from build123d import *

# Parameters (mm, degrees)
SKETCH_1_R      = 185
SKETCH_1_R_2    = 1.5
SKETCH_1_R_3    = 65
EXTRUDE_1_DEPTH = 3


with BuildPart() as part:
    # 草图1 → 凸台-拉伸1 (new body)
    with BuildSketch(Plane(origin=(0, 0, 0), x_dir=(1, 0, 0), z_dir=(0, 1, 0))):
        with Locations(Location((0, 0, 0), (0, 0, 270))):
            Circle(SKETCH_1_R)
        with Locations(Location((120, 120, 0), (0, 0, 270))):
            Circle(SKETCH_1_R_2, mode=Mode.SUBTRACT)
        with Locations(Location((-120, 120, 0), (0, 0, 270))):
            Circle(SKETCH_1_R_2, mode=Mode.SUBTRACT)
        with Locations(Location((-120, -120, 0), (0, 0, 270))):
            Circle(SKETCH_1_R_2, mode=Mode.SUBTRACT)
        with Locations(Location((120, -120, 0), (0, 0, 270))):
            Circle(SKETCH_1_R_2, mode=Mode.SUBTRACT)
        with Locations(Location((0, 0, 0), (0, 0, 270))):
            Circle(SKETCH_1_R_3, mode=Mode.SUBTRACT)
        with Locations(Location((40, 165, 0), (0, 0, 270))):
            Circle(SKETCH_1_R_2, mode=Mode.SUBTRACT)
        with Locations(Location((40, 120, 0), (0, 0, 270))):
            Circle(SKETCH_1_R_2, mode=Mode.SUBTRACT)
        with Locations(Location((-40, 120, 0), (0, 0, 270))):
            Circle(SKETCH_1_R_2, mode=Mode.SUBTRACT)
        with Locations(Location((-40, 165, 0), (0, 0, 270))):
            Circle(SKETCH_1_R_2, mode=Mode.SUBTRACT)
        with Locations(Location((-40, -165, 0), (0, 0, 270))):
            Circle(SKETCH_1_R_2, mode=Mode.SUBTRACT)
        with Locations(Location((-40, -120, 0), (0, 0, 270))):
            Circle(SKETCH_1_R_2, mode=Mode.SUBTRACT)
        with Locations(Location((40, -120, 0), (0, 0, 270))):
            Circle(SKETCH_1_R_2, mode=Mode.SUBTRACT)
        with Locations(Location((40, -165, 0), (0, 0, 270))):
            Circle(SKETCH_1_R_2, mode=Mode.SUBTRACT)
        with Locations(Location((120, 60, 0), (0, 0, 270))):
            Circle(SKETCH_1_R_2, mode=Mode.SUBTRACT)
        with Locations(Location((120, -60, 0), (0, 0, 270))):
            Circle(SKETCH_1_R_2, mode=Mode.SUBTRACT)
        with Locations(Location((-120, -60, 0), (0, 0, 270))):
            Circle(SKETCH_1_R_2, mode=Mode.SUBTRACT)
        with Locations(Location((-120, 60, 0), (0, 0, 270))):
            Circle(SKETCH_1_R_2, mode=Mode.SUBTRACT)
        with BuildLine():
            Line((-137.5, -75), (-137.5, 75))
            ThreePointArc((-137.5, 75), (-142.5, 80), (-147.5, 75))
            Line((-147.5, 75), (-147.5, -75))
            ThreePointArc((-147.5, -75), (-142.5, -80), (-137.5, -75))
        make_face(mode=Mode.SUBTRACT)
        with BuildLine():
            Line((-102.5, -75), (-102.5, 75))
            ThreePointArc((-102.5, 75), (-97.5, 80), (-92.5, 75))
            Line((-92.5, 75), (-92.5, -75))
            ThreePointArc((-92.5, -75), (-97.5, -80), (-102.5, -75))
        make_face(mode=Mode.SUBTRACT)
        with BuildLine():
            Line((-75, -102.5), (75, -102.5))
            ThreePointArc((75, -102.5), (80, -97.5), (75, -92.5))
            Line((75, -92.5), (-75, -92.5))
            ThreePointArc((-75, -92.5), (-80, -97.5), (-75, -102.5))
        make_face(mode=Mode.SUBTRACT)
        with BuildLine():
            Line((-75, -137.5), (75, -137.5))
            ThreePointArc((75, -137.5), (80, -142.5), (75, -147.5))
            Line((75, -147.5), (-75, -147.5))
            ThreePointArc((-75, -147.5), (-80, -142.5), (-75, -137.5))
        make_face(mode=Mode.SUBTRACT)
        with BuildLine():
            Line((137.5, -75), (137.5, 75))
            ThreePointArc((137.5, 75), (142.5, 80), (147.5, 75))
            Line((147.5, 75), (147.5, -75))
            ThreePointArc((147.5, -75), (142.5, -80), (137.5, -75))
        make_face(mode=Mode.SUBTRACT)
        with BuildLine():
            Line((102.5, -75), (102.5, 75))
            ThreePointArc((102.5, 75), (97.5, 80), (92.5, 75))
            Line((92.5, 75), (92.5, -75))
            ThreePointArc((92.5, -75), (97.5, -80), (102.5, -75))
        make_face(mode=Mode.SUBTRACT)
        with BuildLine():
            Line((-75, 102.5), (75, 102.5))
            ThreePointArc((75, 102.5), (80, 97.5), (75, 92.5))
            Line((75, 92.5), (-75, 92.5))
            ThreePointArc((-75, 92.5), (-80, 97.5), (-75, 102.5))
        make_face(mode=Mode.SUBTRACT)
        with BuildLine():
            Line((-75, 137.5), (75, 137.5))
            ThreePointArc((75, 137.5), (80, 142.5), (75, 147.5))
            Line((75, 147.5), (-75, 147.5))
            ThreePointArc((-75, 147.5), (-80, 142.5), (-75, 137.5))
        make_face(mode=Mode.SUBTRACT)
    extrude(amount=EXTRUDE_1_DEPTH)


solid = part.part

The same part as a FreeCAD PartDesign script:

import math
import FreeCAD as App
import Part
import Sketcher

V = App.Vector
Q = App.Units.Quantity

doc = App.newDocument("Part")
body = doc.addObject("PartDesign::Body", "Body")

# Sketch on XZ plane
sketch1 = doc.addObject("Sketcher::SketchObject", "Sketch")
body.addObject(sketch1)
sketch1.AttachmentSupport = (doc.XZ_Plane, [""])
sketch1.MapMode = "FlatFace"
sketch1.addGeometry([
    Part.Circle(V(0, 0, 0), V(0, 0, 1), 185),  # 0
    Part.Circle(V(-120, -120, 0), V(0, 0, 1), 1.5),  # 1
    Part.Circle(V(-120, -60, 0), V(0, 0, 1), 1.5),  # 2
    Part.Circle(V(-40, -165, 0), V(0, 0, 1), 1.5),  # 3
    Part.Circle(V(-40, -120, 0), V(0, 0, 1), 1.5),  # 4
    Part.LineSegment(V(75, -137.5, 0), V(-75, -137.5, 0)),  # 5
    Part.ArcOfCircle(Part.Circle(V(-75, -142.5, 0), V(0, 0, 1), 5), math.radians(90), math.radians(270)),  # 6
    Part.LineSegment(V(-75, -147.5, 0), V(75, -147.5, 0)),  # 7
    Part.ArcOfCircle(Part.Circle(V(75, -142.5, 0), V(0, 0, 1), 5), math.radians(-90), math.radians(90)),  # 8
    Part.ArcOfCircle(Part.Circle(V(-75, -97.5, 0), V(0, 0, 1), 5), math.radians(90), math.radians(270)),  # 9
    Part.LineSegment(V(-75, -102.5, 0), V(75, -102.5, 0)),  # 10
    Part.ArcOfCircle(Part.Circle(V(75, -97.5, 0), V(0, 0, 1), 5), math.radians(-90), math.radians(90)),  # 11
    Part.LineSegment(V(75, -92.5, 0), V(-75, -92.5, 0)),  # 12
    Part.LineSegment(V(-137.5, -75, 0), V(-137.5, 75, 0)),  # 13
    Part.ArcOfCircle(Part.Circle(V(-142.5, 75, 0), V(0, 0, 1), 5), math.radians(0), math.radians(180)),  # 14
    Part.LineSegment(V(-147.5, 75, 0), V(-147.5, -75, 0)),  # 15
    Part.ArcOfCircle(Part.Circle(V(-142.5, -75, 0), V(0, 0, 1), 5), math.radians(180), math.radians(360)),  # 16
    Part.Circle(V(-120, 60, 0), V(0, 0, 1), 1.5),  # 17
    Part.ArcOfCircle(Part.Circle(V(-97.5, 75, 0), V(0, 0, 1), 5), math.radians(0), math.radians(180)),  # 18
    Part.LineSegment(V(-102.5, 75, 0), V(-102.5, -75, 0)),  # 19
    Part.ArcOfCircle(Part.Circle(V(-97.5, -75, 0), V(0, 0, 1), 5), math.radians(180), math.radians(360)),  # 20
    Part.LineSegment(V(-92.5, -75, 0), V(-92.5, 75, 0)),  # 21
    Part.Circle(V(-120, 120, 0), V(0, 0, 1), 1.5),  # 22
    Part.Circle(V(-40, 120, 0), V(0, 0, 1), 1.5),  # 23
    Part.Circle(V(-40, 165, 0), V(0, 0, 1), 1.5),  # 24
    Part.Circle(V(40, -165, 0), V(0, 0, 1), 1.5),  # 25
    Part.Circle(V(40, -120, 0), V(0, 0, 1), 1.5),  # 26
    Part.Circle(V(120, -120, 0), V(0, 0, 1), 1.5),  # 27
    Part.Circle(V(120, -60, 0), V(0, 0, 1), 1.5),  # 28
    Part.Circle(V(0, 0, 0), V(0, 0, 1), 65),  # 29
    Part.LineSegment(V(75, 102.5, 0), V(-75, 102.5, 0)),  # 30
    Part.ArcOfCircle(Part.Circle(V(-75, 97.5, 0), V(0, 0, 1), 5), math.radians(90), math.radians(270)),  # 31
    Part.LineSegment(V(-75, 92.5, 0), V(75, 92.5, 0)),  # 32
    Part.ArcOfCircle(Part.Circle(V(75, 97.5, 0), V(0, 0, 1), 5), math.radians(-90), math.radians(90)),  # 33
    Part.ArcOfCircle(Part.Circle(V(-75, 142.5, 0), V(0, 0, 1), 5), math.radians(90), math.radians(270)),  # 34
    Part.LineSegment(V(-75, 137.5, 0), V(75, 137.5, 0)),  # 35
    Part.ArcOfCircle(Part.Circle(V(75, 142.5, 0), V(0, 0, 1), 5), math.radians(-90), math.radians(90)),  # 36
    Part.LineSegment(V(75, 147.5, 0), V(-75, 147.5, 0)),  # 37
    Part.Circle(V(40, 120, 0), V(0, 0, 1), 1.5),  # 38
    Part.Circle(V(40, 165, 0), V(0, 0, 1), 1.5),  # 39
    Part.LineSegment(V(102.5, -75, 0), V(102.5, 75, 0)),  # 40
    Part.ArcOfCircle(Part.Circle(V(97.5, 75, 0), V(0, 0, 1), 5), math.radians(0), math.radians(180)),  # 41
    Part.LineSegment(V(92.5, 75, 0), V(92.5, -75, 0)),  # 42
    Part.ArcOfCircle(Part.Circle(V(97.5, -75, 0), V(0, 0, 1), 5), math.radians(180), math.radians(360)),  # 43
    Part.ArcOfCircle(Part.Circle(V(142.5, 75, 0), V(0, 0, 1), 5), math.radians(0), math.radians(180)),  # 44
    Part.LineSegment(V(137.5, 75, 0), V(137.5, -75, 0)),  # 45
    Part.ArcOfCircle(Part.Circle(V(142.5, -75, 0), V(0, 0, 1), 5), math.radians(180), math.radians(360)),  # 46
    Part.LineSegment(V(147.5, -75, 0), V(147.5, 75, 0)),  # 47
    Part.Circle(V(120, 60, 0), V(0, 0, 1), 1.5),  # 48
    Part.Circle(V(120, 120, 0), V(0, 0, 1), 1.5),  # 49
], False)
sketch1.addConstraint([
    Sketcher.Constraint("Tangent", 5, 2, 6, 1),
    Sketcher.Constraint("Tangent", 6, 2, 7, 1),
    Sketcher.Constraint("Tangent", 7, 2, 8, 1),
    Sketcher.Constraint("Tangent", 8, 2, 5, 1),
    Sketcher.Constraint("Tangent", 9, 2, 10, 1),
    Sketcher.Constraint("Tangent", 10, 2, 11, 1),
    Sketcher.Constraint("Tangent", 11, 2, 12, 1),
    Sketcher.Constraint("Tangent", 12, 2, 9, 1),
    Sketcher.Constraint("Tangent", 13, 2, 14, 1),
    Sketcher.Constraint("Tangent", 14, 2, 15, 1),
    Sketcher.Constraint("Tangent", 15, 2, 16, 1),
    Sketcher.Constraint("Tangent", 16, 2, 13, 1),
    Sketcher.Constraint("Tangent", 18, 2, 19, 1),
    Sketcher.Constraint("Tangent", 19, 2, 20, 1),
    Sketcher.Constraint("Tangent", 20, 2, 21, 1),
    Sketcher.Constraint("Tangent", 21, 2, 18, 1),
    Sketcher.Constraint("Tangent", 30, 2, 31, 1),
    Sketcher.Constraint("Tangent", 31, 2, 32, 1),
    Sketcher.Constraint("Tangent", 32, 2, 33, 1),
    Sketcher.Constraint("Tangent", 33, 2, 30, 1),
    Sketcher.Constraint("Tangent", 34, 2, 35, 1),
    Sketcher.Constraint("Tangent", 35, 2, 36, 1),
    Sketcher.Constraint("Tangent", 36, 2, 37, 1),
    Sketcher.Constraint("Tangent", 37, 2, 34, 1),
    Sketcher.Constraint("Tangent", 40, 2, 41, 1),
    Sketcher.Constraint("Tangent", 41, 2, 42, 1),
    Sketcher.Constraint("Tangent", 42, 2, 43, 1),
    Sketcher.Constraint("Tangent", 43, 2, 40, 1),
    Sketcher.Constraint("Tangent", 44, 2, 45, 1),
    Sketcher.Constraint("Tangent", 45, 2, 46, 1),
    Sketcher.Constraint("Tangent", 46, 2, 47, 1),
    Sketcher.Constraint("Tangent", 47, 2, 44, 1),
    Sketcher.Constraint("Horizontal", 5),
    Sketcher.Constraint("Horizontal", 7),
    Sketcher.Constraint("Horizontal", 10),
    Sketcher.Constraint("Horizontal", 12),
    Sketcher.Constraint("Vertical", 13),
    Sketcher.Constraint("Vertical", 15),
    Sketcher.Constraint("Vertical", 19),
    Sketcher.Constraint("Vertical", 21),
    Sketcher.Constraint("Horizontal", 30),
    Sketcher.Constraint("Horizontal", 32),
    Sketcher.Constraint("Horizontal", 35),
    Sketcher.Constraint("Horizontal", 37),
    Sketcher.Constraint("Vertical", 40),
    Sketcher.Constraint("Vertical", 42),
    Sketcher.Constraint("Vertical", 45),
    Sketcher.Constraint("Vertical", 47),
    Sketcher.Constraint("Coincident", 0, 3, -1, 1),
    Sketcher.Constraint("Coincident", 29, 3, -1, 1),
    Sketcher.Constraint("Equal", 1, 2),
    Sketcher.Constraint("Equal", 2, 3),
    Sketcher.Constraint("Equal", 3, 4),
    Sketcher.Constraint("Equal", 8, 9),
    Sketcher.Constraint("Equal", 11, 14),
    Sketcher.Constraint("Equal", 4, 17),
    Sketcher.Constraint("Equal", 16, 18),
    Sketcher.Constraint("Equal", 17, 22),
    Sketcher.Constraint("Equal", 22, 23),
    Sketcher.Constraint("Equal", 23, 24),
    Sketcher.Constraint("Equal", 24, 25),
    Sketcher.Constraint("Equal", 25, 26),
    Sketcher.Constraint("Equal", 26, 27),
    Sketcher.Constraint("Equal", 27, 28),
    Sketcher.Constraint("Equal", 20, 31),
    Sketcher.Constraint("Equal", 33, 34),
    Sketcher.Constraint("Equal", 28, 38),
    Sketcher.Constraint("Equal", 38, 39),
    Sketcher.Constraint("Equal", 36, 41),
    Sketcher.Constraint("Equal", 43, 44),
    Sketcher.Constraint("Equal", 39, 48),
    Sketcher.Constraint("Equal", 48, 49),
    Sketcher.Constraint("Symmetric", 24, 3, 25, 3, -1, 1),
    Sketcher.Constraint("Symmetric", 23, 3, 26, 3, -1, 1),
    Sketcher.Constraint("Symmetric", 22, 3, 27, 3, -1, 1),
    Sketcher.Constraint("Symmetric", 17, 3, 28, 3, -1, 1),
    Sketcher.Constraint("Symmetric", 11, 3, 31, 3, -1, 1),
    Sketcher.Constraint("Symmetric", 8, 3, 34, 3, -1, 1),
    Sketcher.Constraint("Symmetric", 4, 3, 38, 3, -1, 1),
    Sketcher.Constraint("Symmetric", 3, 3, 39, 3, -1, 1),
    Sketcher.Constraint("Symmetric", 20, 3, 41, 3, -1, 1),
    Sketcher.Constraint("Symmetric", 16, 3, 44, 3, -1, 1),
    Sketcher.Constraint("Symmetric", 2, 3, 48, 3, -1, 1),
    Sketcher.Constraint("Symmetric", 1, 3, 49, 3, -1, 1),
    Sketcher.Constraint("Symmetric", 3, 3, 25, 3, -2),
    Sketcher.Constraint("Symmetric", 4, 3, 26, 3, -2),
    Sketcher.Constraint("Symmetric", 1, 3, 27, 3, -2),
    Sketcher.Constraint("Symmetric", 2, 3, 28, 3, -2),
    Sketcher.Constraint("Horizontal", 1, 3, 4, 3),
    Sketcher.Constraint("Horizontal", 14, 3, 18, 3),
    Sketcher.Constraint("Horizontal", 16, 3, 20, 3),
    Sketcher.Constraint("Horizontal", 18, 3, 41, 3),
    Sketcher.Constraint("Horizontal", 20, 3, 43, 3),
    Sketcher.Constraint("Horizontal", 43, 3, 46, 3),
    Sketcher.Constraint("Vertical", 1, 3, 2, 3),
    Sketcher.Constraint("Vertical", 3, 3, 4, 3),
    Sketcher.Constraint("Vertical", 6, 3, 9, 3),
    Sketcher.Constraint("Vertical", 8, 3, 11, 3),
    Sketcher.Constraint("Vertical", 9, 3, 31, 3),
    Sketcher.Constraint("Vertical", 11, 3, 33, 3),
    Sketcher.Constraint("Vertical", 33, 3, 36, 3),
    Sketcher.Constraint("Equal", 37, 13),
    Sketcher.Constraint("Diameter", 0, Q("370 mm")),
    Sketcher.Constraint("Diameter", 1, Q("3 mm")),
    Sketcher.Constraint("Diameter", 29, Q("130 mm")),
    Sketcher.Constraint("Radius", 6, Q("5 mm")),
    Sketcher.Constraint("DistanceX", 5, 2, 5, 1, Q("150 mm")),
    Sketcher.Constraint("DistanceX", 1, 3, -1, 1, Q("120 mm")),
    Sketcher.Constraint("DistanceY", 1, 3, -1, 1, Q("120 mm")),
    Sketcher.Constraint("DistanceY", 2, 3, -1, 1, Q("60 mm")),
    Sketcher.Constraint("DistanceX", 3, 3, -1, 1, Q("40 mm")),
    Sketcher.Constraint("DistanceY", 3, 3, -1, 1, Q("165 mm")),
    Sketcher.Constraint("DistanceY", 6, 3, -1, 1, Q("142.5 mm")),
    Sketcher.Constraint("DistanceY", 9, 3, -1, 1, Q("97.5 mm")),
    Sketcher.Constraint("DistanceX", 14, 3, -1, 1, Q("142.5 mm")),
    Sketcher.Constraint("DistanceX", 18, 3, -1, 1, Q("97.5 mm")),
])
pad1 = doc.addObject("PartDesign::Pad", "Pad")
body.addObject(pad1)
pad1.Profile = sketch1
pad1.Length = 3
pad1.Reversed = True

doc.recompute()
